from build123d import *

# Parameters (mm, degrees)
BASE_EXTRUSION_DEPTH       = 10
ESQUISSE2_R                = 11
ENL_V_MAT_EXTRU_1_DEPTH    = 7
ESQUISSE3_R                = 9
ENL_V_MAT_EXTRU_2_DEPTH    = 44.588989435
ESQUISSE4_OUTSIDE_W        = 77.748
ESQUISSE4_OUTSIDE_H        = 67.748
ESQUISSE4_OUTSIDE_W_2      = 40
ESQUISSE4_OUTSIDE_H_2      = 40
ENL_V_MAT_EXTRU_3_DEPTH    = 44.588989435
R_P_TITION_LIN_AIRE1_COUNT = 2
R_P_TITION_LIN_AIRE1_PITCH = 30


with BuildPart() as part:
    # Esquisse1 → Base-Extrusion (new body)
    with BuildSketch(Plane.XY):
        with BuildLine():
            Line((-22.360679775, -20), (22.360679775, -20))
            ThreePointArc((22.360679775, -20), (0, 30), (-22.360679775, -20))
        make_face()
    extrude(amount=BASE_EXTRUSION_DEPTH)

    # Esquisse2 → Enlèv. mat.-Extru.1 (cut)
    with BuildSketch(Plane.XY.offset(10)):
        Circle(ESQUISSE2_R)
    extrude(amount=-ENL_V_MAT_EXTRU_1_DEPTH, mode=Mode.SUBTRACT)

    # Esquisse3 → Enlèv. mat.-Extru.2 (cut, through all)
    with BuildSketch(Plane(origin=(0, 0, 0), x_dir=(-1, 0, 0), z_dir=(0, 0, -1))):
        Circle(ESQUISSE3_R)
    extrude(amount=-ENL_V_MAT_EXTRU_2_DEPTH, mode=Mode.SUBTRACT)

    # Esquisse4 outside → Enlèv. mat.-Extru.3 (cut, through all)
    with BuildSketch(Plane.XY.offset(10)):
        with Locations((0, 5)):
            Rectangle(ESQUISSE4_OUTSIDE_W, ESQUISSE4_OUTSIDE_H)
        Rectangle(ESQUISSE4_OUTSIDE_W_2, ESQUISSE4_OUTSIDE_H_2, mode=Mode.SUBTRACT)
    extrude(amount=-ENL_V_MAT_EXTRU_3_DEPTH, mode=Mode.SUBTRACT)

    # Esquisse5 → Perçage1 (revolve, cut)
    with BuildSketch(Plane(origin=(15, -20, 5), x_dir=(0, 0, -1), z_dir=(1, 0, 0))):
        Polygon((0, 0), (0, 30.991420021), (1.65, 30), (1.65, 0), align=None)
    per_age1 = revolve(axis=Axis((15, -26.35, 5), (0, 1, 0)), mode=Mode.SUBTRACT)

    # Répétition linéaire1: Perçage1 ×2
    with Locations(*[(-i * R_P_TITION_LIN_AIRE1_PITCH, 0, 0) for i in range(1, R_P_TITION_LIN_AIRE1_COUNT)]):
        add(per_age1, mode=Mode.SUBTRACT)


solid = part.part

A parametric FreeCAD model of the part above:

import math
import FreeCAD as App
import Part
import Sketcher
Q = App.Units.Quantity


def add_polygon(sketch, points):
    """Adds a closed chain of lines whose ends are joined by coincident constraints."""
    first, n = sketch.GeometryCount, len(points)
    for a, b in zip(points, points[1:] + points[:1]):
        sketch.addGeometry(Part.LineSegment(App.Vector(*a, 0), App.Vector(*b, 0)), False)
    for i in range(n):
        sketch.addConstraint(Sketcher.Constraint("Coincident", first + i, 2, first + (i + 1) % n, 1))

doc = App.newDocument("Part")
params = doc.addObject("Spreadsheet::Sheet", "Params")
for row, (alias, value) in enumerate([
    ("sketch1_radius", "30 mm"),
    ("pad1_length", "10 mm"),
    ("sketch2_diameter", "22 mm"),
    ("pocket1_length", "7 mm"),
    ("sketch3_diameter", "18 mm"),
    ("sketch4_width", "40 mm"),
    ("sketch5_width", "30 mm"),
    ("sketch5_height", "1.65 mm"),
    ("groove_angle", "360 deg"),
    ("linearpattern_pitch", "30 mm"),
], start=1):
    params.set(f"A{row}", alias)
    params.set(f"B{row}", "=" + value)
    params.setAlias(f"B{row}", alias)

body = doc.addObject("PartDesign::Body", "Body")

sketch1 = body.newObject("Sketcher::SketchObject", "Sketch")
sketch1.AttachmentSupport = (doc.getObject("XY_Plane"), [""])
sketch1.MapMode = "FlatFace"
sketch1.addGeometry([
    Part.LineSegment(App.Vector(-22.36068, -20, 0), App.Vector(22.36068, -20, 0)),
    Part.ArcOfCircle(Part.Circle(App.Vector(0, 0, 0), App.Vector(0, 0, 1), 30), math.radians(-41.810315), math.radians(221.810315)),
], False)
sketch1.addConstraint([
    Sketcher.Constraint("Coincident", 0, 1, 1, 2),
    Sketcher.Constraint("Coincident", 1, 1, 0, 2),
    Sketcher.Constraint("Horizontal", 0),
    Sketcher.Constraint("Coincident", 1, 3, -1, 1),
    Sketcher.Constraint("Radius", 1, Q("30 mm")),
    Sketcher.Constraint("DistanceY", 0, 1, -1, 1, Q("20 mm")),
])
sketch1.setExpression("Constraints[4]", "Params.sketch1_radius")
pad1 = body.newObject("PartDesign::Pad", "Pad")
pad1.Profile = sketch1
pad1.setExpression("Length", "Params.pad1_length")

sketch2 = body.newObject("Sketcher::SketchObject", "Sketch001")
sketch2.AttachmentSupport = (doc.getObject("XY_Plane"), [""])
sketch2.MapMode = "FlatFace"
sketch2.AttachmentOffset = App.Placement(App.Vector(0, 0, 10), App.Rotation())
sketch2.addGeometry(Part.Circle(App.Vector(0, 0, 0), App.Vector(0, 0, 1), 11), False)
sketch2.addConstraint([
    Sketcher.Constraint("Coincident", 0, 3, -1, 1),
    Sketcher.Constraint("Diameter", 0, Q("22 mm")),
])
sketch2.setExpression("Constraints[1]", "Params.sketch2_diameter")
pocket1 = body.newObject("PartDesign::Pocket", "Pocket")
pocket1.Profile = sketch2
pocket1.setExpression("Length", "Params.pocket1_length")

sketch3 = body.newObject("Sketcher::SketchObject", "Sketch002")
sketch3.AttachmentSupport = (doc.getObject("XY_Plane"), [""])
sketch3.MapMode = "FlatFace"
sketch3.addGeometry(Part.Circle(App.Vector(0, 0, 0), App.Vector(0, 0, 1), 9), False)
sketch3.addConstraint([
    Sketcher.Constraint("Coincident", 0, 3, -1, 1),
    Sketcher.Constraint("Diameter", 0, Q("18 mm")),
])
sketch3.setExpression("Constraints[1]", "Params.sketch3_diameter")
pocket2 = body.newObject("PartDesign::Pocket", "Pocket001")
pocket2.Profile = sketch3
pocket2.Type = "ThroughAll"
pocket2.Reversed = True

sketch4 = body.newObject("Sketcher::SketchObject", "Sketch003")
sketch4.AttachmentSupport = (doc.getObject("XY_Plane"), [""])
sketch4.MapMode = "FlatFace"
sketch4.AttachmentOffset = App.Placement(App.Vector(0, 0, 10), App.Rotation())
add_polygon(sketch4, [(-38.874, 38.874), (-38.874, -28.874), (38.874, -28.874), (38.874, 38.874)])
add_polygon(sketch4, [(20, -20), (-20, -20), (-20, 20), (20, 20)])
sketch4.addConstraint([
    Sketcher.Constraint("Vertical", 0),
    Sketcher.Constraint("Horizontal", 1),
    Sketcher.Constraint("Vertical", 2),
    Sketcher.Constraint("Horizontal", 3),
    Sketcher.Constraint("Horizontal", 4),
    Sketcher.Constraint("Vertical", 5),
    Sketcher.Constraint("Horizontal", 6),
    Sketcher.Constraint("Vertical", 7),
    Sketcher.Constraint("Symmetric", 4, 2, 6, 2, -1, 1),
    Sketcher.Constraint("Equal", 6, 5),
    Sketcher.Constraint("DistanceX", 4, 2, 4, 1, Q("40 mm")),
    Sketcher.Constraint("DistanceX", 1, 1, 1, 2, Q("77.748 mm")),
    Sketcher.Constraint("DistanceY", 0, 2, 0, 1, Q("67.748 mm")),
    Sketcher.Constraint("DistanceX", 0, 2, -1, 1, Q("38.874 mm")),
    Sketcher.Constraint("DistanceY", 0, 2, -1, 1, Q("28.874 mm")),
])
sketch4.setExpression("Constraints[18]", "Params.sketch4_width")
pocket3 = body.newObject("PartDesign::Pocket", "Pocket002")
pocket3.Profile = sketch4
pocket3.Type = "ThroughAll"

sketch5 = body.newObject("Sketcher::SketchObject", "Sketch004")
sketch5.AttachmentSupport = (doc.getObject("YZ_Plane"), [""])
sketch5.MapMode = "FlatFace"
sketch5.AttachmentOffset = App.Placement(App.Vector(0, 0, 15), App.Rotation())
add_polygon(sketch5, [(10.99142, 5), (-20, 5), (-20, 3.35), (10, 3.35)])
sketch5.addGeometry(Part.LineSegment(App.Vector(-20, 5, 0), App.Vector(10.99142, 5, 0)), True)
sketch5.addConstraint([
    Sketcher.Constraint("Horizontal", 0),
    Sketcher.Constraint("Vertical", 1),
    Sketcher.Constraint("Horizontal", 2),
    Sketcher.Constraint("Horizontal", 4),
    Sketcher.Constraint("Coincident", 4, 1, 0, 2),
    Sketcher.Constraint("Equal", 0, 4),
    Sketcher.Constraint("DistanceX", 2, 1, 2, 2, Q("30 mm")),
    Sketcher.Constraint("Angle", 3, Q("59 deg")),
    Sketcher.Constraint("DistanceX", 0, 2, -1, 1, Q("20 mm")),
    Sketcher.Constraint("DistanceY", -1, 1, 0, 2, Q("5 mm")),
    Sketcher.Constraint("DistanceY", 1, 2, 1, 1, Q("1.65 mm")),
])
sketch5.setExpression("Constraints[10]", "Params.sketch5_width")
sketch5.setExpression("Constraints[14]", "Params.sketch5_height")
groove = body.newObject("PartDesign::Groove", "Groove")
groove.Profile = sketch5
groove.ReferenceAxis = (sketch5, ["Axis0"])
groove.setExpression("Angle", "Params.groove_angle")
doc.recompute()

linearpattern = body.newObject("PartDesign::LinearPattern", "LinearPattern")
linearpattern.Originals = [groove]
linearpattern.Direction = (doc.getObject("X_Axis"), [""])
linearpattern.Mode = "offset"
linearpattern.setExpression("Offset", "Params.linearpattern_pitch")
linearpattern.Occurrences = 2
linearpattern.Reversed = True
body.Tip = linearpattern

doc.recompute()
